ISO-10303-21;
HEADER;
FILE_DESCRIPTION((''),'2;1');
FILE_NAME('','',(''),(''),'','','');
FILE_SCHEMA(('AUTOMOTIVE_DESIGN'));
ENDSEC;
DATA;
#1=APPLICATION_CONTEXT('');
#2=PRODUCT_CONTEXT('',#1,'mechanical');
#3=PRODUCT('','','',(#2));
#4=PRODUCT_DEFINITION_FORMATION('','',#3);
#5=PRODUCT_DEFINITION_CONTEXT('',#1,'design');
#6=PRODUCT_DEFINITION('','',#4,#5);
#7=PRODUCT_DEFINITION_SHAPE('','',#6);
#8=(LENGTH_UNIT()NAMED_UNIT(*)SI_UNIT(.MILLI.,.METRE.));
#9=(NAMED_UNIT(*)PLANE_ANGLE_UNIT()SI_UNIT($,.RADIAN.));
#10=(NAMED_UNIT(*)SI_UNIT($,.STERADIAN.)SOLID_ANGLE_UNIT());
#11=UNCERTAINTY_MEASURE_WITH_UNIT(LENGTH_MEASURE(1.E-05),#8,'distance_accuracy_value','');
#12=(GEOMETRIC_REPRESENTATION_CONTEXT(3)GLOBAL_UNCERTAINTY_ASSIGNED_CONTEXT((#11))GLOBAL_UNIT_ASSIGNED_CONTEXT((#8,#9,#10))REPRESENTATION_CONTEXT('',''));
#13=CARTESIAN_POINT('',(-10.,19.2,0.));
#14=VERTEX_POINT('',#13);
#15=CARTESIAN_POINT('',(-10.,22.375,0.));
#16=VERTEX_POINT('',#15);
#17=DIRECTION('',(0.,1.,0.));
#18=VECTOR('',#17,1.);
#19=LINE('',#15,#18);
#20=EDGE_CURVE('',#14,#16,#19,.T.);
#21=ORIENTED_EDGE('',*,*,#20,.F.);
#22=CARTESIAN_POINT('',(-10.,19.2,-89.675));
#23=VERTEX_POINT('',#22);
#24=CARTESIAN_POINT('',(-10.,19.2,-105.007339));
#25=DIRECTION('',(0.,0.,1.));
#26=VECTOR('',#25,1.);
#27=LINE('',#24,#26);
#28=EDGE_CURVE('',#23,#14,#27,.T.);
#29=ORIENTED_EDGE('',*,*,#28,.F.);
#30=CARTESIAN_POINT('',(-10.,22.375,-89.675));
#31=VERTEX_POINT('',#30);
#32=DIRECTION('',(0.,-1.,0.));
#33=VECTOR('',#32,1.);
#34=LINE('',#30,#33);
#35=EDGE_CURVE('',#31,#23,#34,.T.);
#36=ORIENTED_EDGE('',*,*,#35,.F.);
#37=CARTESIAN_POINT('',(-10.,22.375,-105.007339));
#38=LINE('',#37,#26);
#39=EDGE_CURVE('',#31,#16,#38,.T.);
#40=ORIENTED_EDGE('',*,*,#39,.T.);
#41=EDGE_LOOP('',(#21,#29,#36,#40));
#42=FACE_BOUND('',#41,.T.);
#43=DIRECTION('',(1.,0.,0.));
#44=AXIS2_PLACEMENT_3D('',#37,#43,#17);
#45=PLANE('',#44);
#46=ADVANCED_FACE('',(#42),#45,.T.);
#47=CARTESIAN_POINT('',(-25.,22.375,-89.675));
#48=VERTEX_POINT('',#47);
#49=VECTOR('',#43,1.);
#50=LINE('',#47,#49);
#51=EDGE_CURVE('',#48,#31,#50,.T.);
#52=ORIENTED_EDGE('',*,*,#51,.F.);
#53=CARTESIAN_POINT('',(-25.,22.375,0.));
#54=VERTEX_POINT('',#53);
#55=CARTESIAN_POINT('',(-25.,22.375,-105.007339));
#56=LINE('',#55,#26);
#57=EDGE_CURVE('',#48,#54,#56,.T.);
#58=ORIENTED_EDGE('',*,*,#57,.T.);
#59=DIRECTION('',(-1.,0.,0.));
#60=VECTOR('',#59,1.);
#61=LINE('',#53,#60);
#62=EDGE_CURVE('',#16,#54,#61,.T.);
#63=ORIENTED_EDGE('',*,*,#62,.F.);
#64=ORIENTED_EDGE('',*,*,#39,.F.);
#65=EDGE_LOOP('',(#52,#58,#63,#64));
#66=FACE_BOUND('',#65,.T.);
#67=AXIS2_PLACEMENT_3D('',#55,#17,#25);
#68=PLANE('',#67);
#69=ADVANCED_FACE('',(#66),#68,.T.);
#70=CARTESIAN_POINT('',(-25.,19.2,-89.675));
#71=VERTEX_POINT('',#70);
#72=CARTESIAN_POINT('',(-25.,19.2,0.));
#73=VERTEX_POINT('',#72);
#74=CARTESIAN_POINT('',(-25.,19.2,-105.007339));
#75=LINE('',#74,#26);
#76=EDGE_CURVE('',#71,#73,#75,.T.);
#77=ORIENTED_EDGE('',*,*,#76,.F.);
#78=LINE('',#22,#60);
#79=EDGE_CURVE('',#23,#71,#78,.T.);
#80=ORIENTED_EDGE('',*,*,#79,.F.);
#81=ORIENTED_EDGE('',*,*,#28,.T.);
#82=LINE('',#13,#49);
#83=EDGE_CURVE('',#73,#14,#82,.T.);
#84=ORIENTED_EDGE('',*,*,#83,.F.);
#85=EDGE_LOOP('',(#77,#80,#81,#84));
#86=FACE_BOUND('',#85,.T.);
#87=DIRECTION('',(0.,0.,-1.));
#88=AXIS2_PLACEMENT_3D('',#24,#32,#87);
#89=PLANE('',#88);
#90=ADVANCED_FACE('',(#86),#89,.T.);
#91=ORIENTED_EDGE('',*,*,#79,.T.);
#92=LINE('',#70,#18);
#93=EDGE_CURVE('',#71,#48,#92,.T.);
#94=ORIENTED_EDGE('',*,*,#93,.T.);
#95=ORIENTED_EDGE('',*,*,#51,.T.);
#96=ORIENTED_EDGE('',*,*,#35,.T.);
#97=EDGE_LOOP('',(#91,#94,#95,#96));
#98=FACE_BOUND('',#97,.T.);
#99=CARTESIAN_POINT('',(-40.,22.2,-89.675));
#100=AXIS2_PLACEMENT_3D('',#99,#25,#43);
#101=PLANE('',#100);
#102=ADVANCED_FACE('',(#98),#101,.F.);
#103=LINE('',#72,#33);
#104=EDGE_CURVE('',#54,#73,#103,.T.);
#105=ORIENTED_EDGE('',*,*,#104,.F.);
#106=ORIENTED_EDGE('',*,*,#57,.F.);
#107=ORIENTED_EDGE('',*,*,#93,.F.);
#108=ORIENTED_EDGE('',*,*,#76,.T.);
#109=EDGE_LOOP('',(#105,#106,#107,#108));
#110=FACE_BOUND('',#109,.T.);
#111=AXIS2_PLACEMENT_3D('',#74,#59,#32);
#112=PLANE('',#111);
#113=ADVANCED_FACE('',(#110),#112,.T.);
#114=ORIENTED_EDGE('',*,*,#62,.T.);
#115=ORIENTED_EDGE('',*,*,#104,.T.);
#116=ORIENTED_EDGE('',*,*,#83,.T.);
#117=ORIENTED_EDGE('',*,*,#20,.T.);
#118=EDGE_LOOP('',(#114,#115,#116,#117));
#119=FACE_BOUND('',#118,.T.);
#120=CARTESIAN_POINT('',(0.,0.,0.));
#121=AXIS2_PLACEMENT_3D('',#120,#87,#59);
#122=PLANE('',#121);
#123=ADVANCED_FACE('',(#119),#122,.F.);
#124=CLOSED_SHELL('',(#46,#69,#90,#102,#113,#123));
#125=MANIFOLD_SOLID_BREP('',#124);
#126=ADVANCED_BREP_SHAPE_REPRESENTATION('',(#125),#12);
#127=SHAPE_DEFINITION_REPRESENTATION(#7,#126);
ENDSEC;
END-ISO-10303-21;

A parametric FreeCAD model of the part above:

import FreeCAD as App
import Part
import Sketcher

V = App.Vector


def add_polygon(sketch, points):
    """Adds a closed chain of lines whose ends are joined by coincident constraints."""
    first, n = sketch.GeometryCount, len(points)
    for a, b in zip(points, points[1:] + points[:1]):
        sketch.addGeometry(Part.LineSegment(App.Vector(*a, 0), App.Vector(*b, 0)), False)
    for i in range(n):
        sketch.addConstraint(Sketcher.Constraint("Coincident", first + i, 2, first + (i + 1) % n, 1))

doc = App.newDocument("Part")
body = doc.addObject("PartDesign::Body", "Body")

# Sketch on XY plane
sketch1 = doc.addObject("Sketcher::SketchObject", "Sketch")
body.addObject(sketch1)
sketch1.AttachmentSupport = (doc.XY_Plane, [""])
sketch1.MapMode = "FlatFace"
add_polygon(sketch1, [(-25, 22.4), (-25, 19.2), (-10, 19.2), (-10, 22.4)])  # lines 0-3
sketch1.addConstraint([
    Sketcher.Constraint("Vertical", 0),
    Sketcher.Constraint("Horizontal", 1),
    Sketcher.Constraint("Vertical", 2),
    Sketcher.Constraint("Horizontal", 3),
    Sketcher.Constraint("DistanceX", 1, 1, 1, 2, 15.0),
    Sketcher.Constraint("DistanceX", 0, 2, -1, 1, 25.0),
    Sketcher.Constraint("DistanceY", -1, 1, 0, 2, 19.2),
    Sketcher.Constraint("DistanceY", 0, 2, 0, 1, 3.175),
])
pad1 = doc.addObject("PartDesign::Pad", "Pad")
body.addObject(pad1)
pad1.Profile = sketch1
pad1.Length = 89.675
pad1.Reversed = True

doc.recompute()
